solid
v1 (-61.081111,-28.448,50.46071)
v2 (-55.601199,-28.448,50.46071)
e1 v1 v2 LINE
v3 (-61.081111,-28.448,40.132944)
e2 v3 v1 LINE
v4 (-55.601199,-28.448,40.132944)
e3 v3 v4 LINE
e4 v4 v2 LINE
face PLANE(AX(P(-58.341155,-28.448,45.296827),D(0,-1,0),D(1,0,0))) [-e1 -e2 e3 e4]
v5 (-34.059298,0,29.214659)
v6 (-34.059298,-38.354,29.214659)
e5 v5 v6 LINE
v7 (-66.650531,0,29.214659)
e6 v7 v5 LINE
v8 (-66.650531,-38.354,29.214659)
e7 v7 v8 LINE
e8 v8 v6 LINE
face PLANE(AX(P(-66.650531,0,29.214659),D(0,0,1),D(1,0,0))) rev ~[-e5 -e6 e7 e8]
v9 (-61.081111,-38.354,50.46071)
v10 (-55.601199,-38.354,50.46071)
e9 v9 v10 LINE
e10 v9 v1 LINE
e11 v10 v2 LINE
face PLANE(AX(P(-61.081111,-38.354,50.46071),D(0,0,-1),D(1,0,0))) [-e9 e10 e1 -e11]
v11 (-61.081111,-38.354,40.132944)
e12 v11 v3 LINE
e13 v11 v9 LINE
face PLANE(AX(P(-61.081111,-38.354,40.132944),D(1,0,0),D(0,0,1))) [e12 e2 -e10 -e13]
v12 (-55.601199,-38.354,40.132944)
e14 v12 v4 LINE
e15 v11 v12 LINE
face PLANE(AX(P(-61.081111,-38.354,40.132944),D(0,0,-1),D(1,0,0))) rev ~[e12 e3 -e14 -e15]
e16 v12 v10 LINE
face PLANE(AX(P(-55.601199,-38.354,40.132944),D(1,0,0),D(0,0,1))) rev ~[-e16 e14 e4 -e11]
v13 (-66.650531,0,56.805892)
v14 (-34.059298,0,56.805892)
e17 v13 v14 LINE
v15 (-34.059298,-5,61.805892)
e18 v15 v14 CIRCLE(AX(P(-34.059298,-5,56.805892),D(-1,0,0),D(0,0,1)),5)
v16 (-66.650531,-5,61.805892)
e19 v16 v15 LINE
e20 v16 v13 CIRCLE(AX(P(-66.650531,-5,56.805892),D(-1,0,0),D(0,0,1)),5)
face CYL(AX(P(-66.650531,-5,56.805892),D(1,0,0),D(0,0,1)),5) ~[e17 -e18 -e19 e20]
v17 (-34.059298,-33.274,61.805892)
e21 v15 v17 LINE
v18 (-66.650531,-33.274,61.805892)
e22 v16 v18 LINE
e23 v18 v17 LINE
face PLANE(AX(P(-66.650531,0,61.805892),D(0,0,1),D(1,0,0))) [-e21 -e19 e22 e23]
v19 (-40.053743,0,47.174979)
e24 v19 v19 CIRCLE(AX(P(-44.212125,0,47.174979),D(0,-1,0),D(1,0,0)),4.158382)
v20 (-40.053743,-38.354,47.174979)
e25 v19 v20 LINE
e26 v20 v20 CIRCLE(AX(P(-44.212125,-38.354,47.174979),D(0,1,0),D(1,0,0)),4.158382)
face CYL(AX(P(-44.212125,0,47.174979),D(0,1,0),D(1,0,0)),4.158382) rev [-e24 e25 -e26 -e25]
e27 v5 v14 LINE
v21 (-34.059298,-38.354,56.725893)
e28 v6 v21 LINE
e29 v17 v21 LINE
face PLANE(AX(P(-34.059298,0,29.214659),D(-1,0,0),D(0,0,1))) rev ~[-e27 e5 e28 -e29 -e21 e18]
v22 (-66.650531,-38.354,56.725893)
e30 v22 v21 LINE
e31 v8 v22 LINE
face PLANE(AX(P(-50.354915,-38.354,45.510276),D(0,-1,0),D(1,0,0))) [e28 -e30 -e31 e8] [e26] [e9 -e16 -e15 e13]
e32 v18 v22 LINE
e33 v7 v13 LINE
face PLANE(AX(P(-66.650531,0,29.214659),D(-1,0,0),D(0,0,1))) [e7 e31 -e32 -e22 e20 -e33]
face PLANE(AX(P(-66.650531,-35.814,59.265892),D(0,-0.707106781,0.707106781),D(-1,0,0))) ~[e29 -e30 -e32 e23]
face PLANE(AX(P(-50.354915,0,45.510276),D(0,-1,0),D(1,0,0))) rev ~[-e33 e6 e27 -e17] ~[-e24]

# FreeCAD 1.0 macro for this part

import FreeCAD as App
import Part
import Sketcher

V = App.Vector


def edges_at(feature, points):
    """Names of the edges that pass closest to the given points."""
    edges = feature.Shape.Edges
    near = lambda p: min(range(len(edges)), key=lambda i: edges[i].distToShape(Part.Vertex(*p))[0])
    return sorted({f"Edge{near(p) + 1}" for p in points})

doc = App.newDocument("Part")
params = doc.addObject("Spreadsheet::Sheet", "Params")
for row, (alias, value) in enumerate([
    ("pad1_length", "1.51 in"),
    ("chamfer_size", "0.2 in"),
    ("pocket1_length", "1.58 in"),
    ("pocket2_length", "0.39 in"),
    ("fillet_radius", "5 mm"),
], start=1):
    params.set(f"A{row}", alias)
    params.set(f"B{row}", "=" + value)
    params.setAlias(f"B{row}", alias)

body = doc.addObject("PartDesign::Body", "Body")

# Sketch on XZ plane
sketch1 = doc.addObject("Sketcher::SketchObject", "Sketch")
body.addObject(sketch1)
sketch1.AttachmentSupport = (doc.XZ_Plane, [""])
sketch1.MapMode = "FlatFace"
sketch1.addGeometry([
    Part.LineSegment(V(-67, 62, 0), V(-67, 29, 0)),
    Part.LineSegment(V(-67, 29, 0), V(-34, 29, 0)),
    Part.LineSegment(V(-34, 29, 0), V(-34, 62, 0)),
    Part.LineSegment(V(-34, 62, 0), V(-67, 62, 0)),
], False)
sketch1.addConstraint([
    Sketcher.Constraint("Coincident", 0, 2, 1, 1),
    Sketcher.Constraint("Coincident", 1, 2, 2, 1),
    Sketcher.Constraint("Coincident", 2, 2, 3, 1),
    Sketcher.Constraint("Coincident", 3, 2, 0, 1),
    Sketcher.Constraint("Vertical", 0),
    Sketcher.Constraint("Horizontal", 1),
    Sketcher.Constraint("Vertical", 2),
    Sketcher.Constraint("Horizontal", 3),
    Sketcher.Constraint("Equal", 3, 0),
    Sketcher.Constraint("DistanceX", 1, 2, -1, 1, 34.059298),
    Sketcher.Constraint("DistanceX", 1, 1, 1, 2, 32.591233),
    Sketcher.Constraint("DistanceY", -1, 1, 0, 2, 29.214659),
])
pad1 = doc.addObject("PartDesign::Pad", "Pad")
body.addObject(pad1)
pad1.Profile = sketch1
pad1.setExpression("Length", "Params.pad1_length")
doc.recompute()

chamfer = doc.addObject("PartDesign::Chamfer", "Chamfer")
body.addObject(chamfer)
chamfer.Base = (pad1, edges_at(pad1, [(-50.355, -38.354, 61.806)]))
chamfer.setExpression("Size", "Params.chamfer_size")

# Sketch on XZ plane
sketch2 = doc.addObject("Sketcher::SketchObject", "Sketch001")
body.addObject(sketch2)
sketch2.AttachmentSupport = (doc.XZ_Plane, [""])
sketch2.MapMode = "FlatFace"
sketch2.addGeometry(Part.Circle(V(-44.2, 47.2, 0), V(0, 0, 1), 4.2), False)
sketch2.addConstraint([
    Sketcher.Constraint("Diameter", 0, 8.316764),
    Sketcher.Constraint("DistanceY", -1, 1, 0, 3, 47.174979),
    Sketcher.Constraint("DistanceX", 0, 3, -1, 1, 44.212125),
])
pocket1 = doc.addObject("PartDesign::Pocket", "Pocket")
body.addObject(pocket1)
pocket1.Profile = sketch2
pocket1.setExpression("Length", "Params.pocket1_length")
pocket1.Reversed = True

# Sketch on XZ plane
sketch3 = doc.addObject("Sketcher::SketchObject", "Sketch002")
body.addObject(sketch3)
sketch3.AttachmentSupport = (doc.XZ_Plane, [""])
sketch3.MapMode = "FlatFace"
sketch3.AttachmentOffset = App.Placement(V(0, 0, 1.51 * 25.4), App.Rotation())
sketch3.addGeometry([
    Part.LineSegment(V(-61, 50, 0), V(-61, 40, 0)),
    Part.LineSegment(V(-61, 40, 0), V(-56, 40, 0)),
    Part.LineSegment(V(-56, 40, 0), V(-56, 50, 0)),
    Part.LineSegment(V(-56, 50, 0), V(-61, 50, 0)),
], False)
sketch3.addConstraint([
    Sketcher.Constraint("Coincident", 0, 2, 1, 1),
    Sketcher.Constraint("Coincident", 1, 2, 2, 1),
    Sketcher.Constraint("Coincident", 2, 2, 3, 1),
    Sketcher.Constraint("Coincident", 3, 2, 0, 1),
    Sketcher.Constraint("Vertical", 0),
    Sketcher.Constraint("Horizontal", 1),
    Sketcher.Constraint("Vertical", 2),
    Sketcher.Constraint("Horizontal", 3),
    Sketcher.Constraint("DistanceX", 1, 2, -1, 1, 55.601199),
    Sketcher.Constraint("DistanceX", 1, 1, 1, 2, 5.479913),
    Sketcher.Constraint("DistanceY", 0, 2, 0, 1, 10.327767),
    Sketcher.Constraint("DistanceY", -1, 1, 2, 2, 50.46071),
])
pocket2 = doc.addObject("PartDesign::Pocket", "Pocket001")
body.addObject(pocket2)
pocket2.Profile = sketch3
pocket2.setExpression("Length", "Params.pocket2_length")
doc.recompute()

fillet = doc.addObject("PartDesign::Fillet", "Fillet")
body.addObject(fillet)
fillet.Base = (pocket2, edges_at(pocket2, [(-50.355, 0, 61.806)]))
fillet.setExpression("Radius", "Params.fillet_radius")

doc.recompute()
